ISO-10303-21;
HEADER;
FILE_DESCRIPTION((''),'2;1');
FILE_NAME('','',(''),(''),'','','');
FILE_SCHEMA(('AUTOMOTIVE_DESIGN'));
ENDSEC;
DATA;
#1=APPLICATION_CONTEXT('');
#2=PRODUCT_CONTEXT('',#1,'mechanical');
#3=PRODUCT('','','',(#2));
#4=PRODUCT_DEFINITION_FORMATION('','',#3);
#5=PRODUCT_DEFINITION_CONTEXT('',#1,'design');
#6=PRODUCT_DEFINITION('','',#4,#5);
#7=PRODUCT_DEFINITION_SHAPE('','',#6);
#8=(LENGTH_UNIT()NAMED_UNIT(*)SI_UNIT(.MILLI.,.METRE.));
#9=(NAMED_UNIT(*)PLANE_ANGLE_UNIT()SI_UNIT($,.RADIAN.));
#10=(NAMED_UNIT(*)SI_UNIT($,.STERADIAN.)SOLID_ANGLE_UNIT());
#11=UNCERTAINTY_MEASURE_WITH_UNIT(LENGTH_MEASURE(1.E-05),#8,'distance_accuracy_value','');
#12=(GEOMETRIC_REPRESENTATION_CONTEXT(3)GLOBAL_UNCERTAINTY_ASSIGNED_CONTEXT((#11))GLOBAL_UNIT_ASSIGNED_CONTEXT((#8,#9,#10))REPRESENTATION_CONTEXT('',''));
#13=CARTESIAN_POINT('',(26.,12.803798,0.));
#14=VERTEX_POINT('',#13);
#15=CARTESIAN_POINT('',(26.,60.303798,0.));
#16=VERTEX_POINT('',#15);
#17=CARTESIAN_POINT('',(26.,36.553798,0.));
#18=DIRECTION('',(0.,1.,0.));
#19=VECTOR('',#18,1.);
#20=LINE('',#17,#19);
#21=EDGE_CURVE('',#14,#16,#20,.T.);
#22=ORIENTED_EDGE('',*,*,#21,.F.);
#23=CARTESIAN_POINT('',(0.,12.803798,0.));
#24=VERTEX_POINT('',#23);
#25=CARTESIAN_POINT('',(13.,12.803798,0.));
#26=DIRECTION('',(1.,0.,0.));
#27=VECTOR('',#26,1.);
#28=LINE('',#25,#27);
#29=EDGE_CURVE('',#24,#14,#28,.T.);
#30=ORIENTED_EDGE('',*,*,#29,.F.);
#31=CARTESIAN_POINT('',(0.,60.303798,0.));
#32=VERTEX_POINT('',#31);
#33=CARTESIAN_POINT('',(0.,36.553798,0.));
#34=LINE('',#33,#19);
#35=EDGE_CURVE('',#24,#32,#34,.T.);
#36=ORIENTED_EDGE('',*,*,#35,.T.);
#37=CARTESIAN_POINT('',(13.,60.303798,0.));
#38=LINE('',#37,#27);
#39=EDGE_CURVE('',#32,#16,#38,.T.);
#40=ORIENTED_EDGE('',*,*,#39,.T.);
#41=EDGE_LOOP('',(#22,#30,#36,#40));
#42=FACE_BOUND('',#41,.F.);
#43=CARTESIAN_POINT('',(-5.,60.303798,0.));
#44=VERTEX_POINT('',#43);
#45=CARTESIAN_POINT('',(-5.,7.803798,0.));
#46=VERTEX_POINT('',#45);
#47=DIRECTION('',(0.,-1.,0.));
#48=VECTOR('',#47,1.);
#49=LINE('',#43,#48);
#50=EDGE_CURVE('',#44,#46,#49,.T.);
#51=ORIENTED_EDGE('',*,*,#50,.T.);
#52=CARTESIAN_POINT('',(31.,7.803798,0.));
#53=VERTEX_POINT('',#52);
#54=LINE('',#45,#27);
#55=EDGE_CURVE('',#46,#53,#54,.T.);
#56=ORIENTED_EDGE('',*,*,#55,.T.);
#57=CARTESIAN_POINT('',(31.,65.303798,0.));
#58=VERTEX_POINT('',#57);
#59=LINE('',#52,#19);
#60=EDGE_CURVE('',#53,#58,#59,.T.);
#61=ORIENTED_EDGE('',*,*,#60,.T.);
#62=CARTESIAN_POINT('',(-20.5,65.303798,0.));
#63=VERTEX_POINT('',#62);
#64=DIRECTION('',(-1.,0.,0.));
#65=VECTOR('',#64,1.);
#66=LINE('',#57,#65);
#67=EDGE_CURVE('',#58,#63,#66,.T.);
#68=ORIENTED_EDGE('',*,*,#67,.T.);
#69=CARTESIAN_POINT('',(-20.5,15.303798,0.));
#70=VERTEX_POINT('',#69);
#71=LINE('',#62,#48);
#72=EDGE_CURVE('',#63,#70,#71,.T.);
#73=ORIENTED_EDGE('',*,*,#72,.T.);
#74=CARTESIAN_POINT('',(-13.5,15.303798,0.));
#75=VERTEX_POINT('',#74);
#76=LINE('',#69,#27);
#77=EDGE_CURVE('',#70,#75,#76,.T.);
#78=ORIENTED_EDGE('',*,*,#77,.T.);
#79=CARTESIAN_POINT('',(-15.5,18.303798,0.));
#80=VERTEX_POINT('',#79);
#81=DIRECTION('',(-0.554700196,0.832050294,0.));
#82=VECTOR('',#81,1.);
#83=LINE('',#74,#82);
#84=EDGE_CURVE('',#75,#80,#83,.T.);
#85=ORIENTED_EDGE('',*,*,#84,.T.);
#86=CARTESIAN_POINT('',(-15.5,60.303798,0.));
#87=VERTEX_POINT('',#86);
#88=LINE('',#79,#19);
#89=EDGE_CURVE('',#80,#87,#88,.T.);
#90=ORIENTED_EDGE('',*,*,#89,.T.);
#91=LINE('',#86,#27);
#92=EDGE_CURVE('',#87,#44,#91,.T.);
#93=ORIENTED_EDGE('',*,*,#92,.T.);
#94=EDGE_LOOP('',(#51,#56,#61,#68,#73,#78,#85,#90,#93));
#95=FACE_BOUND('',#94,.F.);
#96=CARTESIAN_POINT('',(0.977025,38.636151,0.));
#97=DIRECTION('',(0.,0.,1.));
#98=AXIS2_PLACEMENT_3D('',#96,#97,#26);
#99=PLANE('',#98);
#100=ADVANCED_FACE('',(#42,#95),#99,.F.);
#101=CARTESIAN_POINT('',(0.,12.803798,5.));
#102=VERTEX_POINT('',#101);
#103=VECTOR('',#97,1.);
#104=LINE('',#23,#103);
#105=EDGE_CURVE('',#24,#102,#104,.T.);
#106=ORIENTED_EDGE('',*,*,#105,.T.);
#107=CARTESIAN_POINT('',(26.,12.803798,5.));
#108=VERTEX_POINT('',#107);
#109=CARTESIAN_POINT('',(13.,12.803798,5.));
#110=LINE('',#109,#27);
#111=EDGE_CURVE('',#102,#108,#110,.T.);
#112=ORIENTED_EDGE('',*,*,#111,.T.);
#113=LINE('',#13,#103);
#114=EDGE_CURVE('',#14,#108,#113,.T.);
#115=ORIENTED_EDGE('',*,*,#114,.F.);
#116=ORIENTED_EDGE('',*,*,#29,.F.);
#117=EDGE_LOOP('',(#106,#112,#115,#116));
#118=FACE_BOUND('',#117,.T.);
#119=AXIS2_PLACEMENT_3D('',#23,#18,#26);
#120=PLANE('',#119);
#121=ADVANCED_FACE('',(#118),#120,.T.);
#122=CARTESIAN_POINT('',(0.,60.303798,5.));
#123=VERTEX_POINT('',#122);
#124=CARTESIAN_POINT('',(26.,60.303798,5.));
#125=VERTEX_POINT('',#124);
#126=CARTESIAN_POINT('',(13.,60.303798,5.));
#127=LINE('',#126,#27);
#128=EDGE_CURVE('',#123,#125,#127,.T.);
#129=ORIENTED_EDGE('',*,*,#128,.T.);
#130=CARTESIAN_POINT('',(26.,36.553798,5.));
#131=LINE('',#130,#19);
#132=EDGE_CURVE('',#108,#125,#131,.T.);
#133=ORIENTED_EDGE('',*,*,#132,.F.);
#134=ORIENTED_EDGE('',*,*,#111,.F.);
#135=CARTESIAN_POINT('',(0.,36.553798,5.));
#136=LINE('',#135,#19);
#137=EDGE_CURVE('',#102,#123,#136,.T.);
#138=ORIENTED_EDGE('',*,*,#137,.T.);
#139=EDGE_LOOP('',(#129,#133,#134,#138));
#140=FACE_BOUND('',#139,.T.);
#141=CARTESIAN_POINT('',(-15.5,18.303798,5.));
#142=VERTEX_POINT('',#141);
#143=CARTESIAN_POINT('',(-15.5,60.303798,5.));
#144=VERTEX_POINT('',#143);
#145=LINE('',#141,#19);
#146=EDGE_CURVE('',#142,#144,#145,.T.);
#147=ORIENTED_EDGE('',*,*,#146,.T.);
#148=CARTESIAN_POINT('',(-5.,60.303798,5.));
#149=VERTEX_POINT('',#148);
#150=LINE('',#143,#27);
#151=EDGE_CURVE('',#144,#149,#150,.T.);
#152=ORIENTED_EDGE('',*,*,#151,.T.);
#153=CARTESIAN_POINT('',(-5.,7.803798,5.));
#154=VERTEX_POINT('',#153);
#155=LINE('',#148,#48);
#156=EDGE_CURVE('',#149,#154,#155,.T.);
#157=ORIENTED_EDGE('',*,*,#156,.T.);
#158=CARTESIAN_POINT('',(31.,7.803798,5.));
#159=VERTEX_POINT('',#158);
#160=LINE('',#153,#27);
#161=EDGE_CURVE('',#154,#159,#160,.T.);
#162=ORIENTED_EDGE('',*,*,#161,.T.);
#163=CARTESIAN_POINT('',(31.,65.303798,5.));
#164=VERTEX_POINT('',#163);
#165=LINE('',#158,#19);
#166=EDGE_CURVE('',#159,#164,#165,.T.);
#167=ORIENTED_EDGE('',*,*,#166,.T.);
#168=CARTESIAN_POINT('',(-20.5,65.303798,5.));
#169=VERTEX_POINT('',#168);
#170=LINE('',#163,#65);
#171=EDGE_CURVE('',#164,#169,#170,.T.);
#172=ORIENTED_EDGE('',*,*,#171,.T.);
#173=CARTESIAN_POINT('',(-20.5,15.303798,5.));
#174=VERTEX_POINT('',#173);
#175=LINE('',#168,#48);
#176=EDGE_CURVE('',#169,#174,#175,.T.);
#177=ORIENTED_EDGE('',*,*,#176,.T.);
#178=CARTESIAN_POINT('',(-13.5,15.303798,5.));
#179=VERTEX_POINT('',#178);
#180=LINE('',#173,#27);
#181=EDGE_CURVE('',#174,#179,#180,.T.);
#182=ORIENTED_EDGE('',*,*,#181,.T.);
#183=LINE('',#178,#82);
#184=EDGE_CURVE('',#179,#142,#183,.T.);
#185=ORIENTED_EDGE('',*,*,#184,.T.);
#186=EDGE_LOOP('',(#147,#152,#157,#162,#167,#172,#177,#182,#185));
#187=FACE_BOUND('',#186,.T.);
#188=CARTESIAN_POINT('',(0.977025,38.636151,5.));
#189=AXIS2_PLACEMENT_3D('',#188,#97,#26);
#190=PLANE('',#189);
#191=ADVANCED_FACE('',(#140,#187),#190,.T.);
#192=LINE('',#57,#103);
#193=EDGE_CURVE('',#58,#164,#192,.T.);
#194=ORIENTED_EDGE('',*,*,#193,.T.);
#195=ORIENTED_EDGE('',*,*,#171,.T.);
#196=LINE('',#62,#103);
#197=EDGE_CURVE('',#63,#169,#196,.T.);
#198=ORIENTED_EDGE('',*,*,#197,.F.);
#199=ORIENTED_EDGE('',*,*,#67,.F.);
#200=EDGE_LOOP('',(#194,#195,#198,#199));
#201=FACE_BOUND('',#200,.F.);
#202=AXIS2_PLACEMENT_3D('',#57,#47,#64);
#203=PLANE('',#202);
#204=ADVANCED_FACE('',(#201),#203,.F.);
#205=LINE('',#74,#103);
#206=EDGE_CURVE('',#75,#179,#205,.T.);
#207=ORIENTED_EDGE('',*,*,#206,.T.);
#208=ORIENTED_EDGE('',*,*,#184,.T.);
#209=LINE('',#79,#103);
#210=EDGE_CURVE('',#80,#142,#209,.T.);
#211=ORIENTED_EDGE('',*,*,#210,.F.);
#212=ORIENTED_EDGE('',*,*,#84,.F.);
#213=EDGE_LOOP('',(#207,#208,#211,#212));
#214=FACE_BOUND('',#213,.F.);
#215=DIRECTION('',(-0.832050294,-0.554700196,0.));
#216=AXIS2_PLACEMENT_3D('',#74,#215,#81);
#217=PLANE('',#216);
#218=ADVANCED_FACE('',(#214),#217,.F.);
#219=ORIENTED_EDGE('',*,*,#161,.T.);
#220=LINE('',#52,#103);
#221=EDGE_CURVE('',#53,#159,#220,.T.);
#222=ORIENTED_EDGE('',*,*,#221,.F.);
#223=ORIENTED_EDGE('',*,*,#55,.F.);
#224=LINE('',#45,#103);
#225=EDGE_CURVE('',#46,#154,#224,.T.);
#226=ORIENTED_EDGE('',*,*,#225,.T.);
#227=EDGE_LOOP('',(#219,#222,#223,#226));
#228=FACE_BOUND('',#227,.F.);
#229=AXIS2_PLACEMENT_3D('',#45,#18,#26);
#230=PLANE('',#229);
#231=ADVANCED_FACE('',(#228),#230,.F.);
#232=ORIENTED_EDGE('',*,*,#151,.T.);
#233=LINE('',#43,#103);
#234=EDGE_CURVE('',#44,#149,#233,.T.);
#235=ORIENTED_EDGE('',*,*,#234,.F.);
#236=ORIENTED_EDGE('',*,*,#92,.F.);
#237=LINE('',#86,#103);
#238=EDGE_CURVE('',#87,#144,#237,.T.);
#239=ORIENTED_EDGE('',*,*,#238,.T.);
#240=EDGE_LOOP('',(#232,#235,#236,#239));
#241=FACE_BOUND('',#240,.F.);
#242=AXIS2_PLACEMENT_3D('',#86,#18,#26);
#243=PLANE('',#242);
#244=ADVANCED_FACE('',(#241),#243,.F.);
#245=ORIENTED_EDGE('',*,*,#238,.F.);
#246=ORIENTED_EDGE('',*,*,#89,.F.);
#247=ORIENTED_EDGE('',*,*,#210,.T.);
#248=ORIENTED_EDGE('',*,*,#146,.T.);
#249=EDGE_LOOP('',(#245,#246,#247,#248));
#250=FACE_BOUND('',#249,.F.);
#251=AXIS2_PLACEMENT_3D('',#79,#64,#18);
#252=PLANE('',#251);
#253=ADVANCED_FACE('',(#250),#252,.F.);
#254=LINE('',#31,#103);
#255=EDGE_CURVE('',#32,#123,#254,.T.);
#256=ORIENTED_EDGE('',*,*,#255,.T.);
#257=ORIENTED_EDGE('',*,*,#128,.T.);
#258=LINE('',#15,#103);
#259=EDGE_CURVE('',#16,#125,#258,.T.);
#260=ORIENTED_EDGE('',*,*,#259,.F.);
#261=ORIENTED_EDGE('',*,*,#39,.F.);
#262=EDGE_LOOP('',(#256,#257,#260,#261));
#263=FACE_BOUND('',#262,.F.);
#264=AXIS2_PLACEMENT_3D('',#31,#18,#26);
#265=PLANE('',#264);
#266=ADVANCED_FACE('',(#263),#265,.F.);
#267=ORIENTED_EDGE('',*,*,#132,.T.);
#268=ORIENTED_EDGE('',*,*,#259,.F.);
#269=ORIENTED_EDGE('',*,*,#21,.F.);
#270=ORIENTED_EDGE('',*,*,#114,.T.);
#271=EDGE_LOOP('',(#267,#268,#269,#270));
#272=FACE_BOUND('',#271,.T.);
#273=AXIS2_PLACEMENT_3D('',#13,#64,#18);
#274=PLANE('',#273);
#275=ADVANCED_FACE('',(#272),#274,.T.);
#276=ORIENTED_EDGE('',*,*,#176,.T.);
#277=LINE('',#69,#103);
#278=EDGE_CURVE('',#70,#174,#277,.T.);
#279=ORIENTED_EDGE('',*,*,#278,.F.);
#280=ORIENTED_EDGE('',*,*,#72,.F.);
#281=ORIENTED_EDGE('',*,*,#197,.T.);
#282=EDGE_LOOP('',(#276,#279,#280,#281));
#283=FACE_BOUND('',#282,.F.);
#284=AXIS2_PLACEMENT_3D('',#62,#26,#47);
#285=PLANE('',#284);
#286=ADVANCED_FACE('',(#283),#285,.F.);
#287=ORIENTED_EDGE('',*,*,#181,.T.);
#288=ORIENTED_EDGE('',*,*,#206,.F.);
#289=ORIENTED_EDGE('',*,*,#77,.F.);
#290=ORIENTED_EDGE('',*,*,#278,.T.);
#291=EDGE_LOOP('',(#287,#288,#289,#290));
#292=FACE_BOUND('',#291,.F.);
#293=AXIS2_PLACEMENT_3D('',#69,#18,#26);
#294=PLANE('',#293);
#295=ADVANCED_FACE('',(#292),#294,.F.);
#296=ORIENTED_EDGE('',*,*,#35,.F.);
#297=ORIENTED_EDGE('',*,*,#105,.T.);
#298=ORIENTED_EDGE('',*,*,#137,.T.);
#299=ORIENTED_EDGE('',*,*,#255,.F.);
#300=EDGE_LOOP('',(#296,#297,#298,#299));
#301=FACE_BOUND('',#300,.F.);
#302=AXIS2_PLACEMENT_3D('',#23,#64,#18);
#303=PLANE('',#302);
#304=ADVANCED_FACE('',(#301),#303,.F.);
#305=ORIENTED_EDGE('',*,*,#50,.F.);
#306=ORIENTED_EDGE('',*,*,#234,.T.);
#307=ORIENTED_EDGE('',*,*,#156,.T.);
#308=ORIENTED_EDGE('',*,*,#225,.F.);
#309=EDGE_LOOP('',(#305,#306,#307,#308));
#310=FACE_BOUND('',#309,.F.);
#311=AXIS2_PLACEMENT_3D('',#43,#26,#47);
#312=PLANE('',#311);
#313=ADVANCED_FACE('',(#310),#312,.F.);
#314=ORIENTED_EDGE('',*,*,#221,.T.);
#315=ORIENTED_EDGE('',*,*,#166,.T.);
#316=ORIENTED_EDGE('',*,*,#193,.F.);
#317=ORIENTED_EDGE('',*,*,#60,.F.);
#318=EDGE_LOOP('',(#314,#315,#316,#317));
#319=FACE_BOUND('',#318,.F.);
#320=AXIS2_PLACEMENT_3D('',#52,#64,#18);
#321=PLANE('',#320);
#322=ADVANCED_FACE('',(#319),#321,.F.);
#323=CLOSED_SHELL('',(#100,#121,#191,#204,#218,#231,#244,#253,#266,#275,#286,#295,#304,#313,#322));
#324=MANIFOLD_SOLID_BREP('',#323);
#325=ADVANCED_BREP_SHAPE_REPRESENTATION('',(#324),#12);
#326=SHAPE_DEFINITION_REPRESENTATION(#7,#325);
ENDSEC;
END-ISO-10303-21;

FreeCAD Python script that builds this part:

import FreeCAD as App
import Part
import Sketcher
from FreeCAD import Vector

doc = App.newDocument("Part")
params = doc.addObject("Spreadsheet::Sheet", "Params")
for row, (alias, value) in enumerate([
    ("sketch1_width", "7 mm"),
    ("sketch1_width2", "36 mm"),
    ("sketch1_width3", "26 mm"),
    ("sketch1_height", "50 mm"),
    ("sketch1_height2", "42 mm"),
    ("pad1_length", "5 mm"),
], start=1):
    params.set(f"A{row}", alias)
    params.set(f"B{row}", "=" + value)
    params.setAlias(f"B{row}", alias)

body = doc.addObject("PartDesign::Body", "Body")

# Sketch on XY plane
sketch1 = body.newObject("Sketcher::SketchObject", "Sketch")
sketch1.AttachmentSupport = (doc.getObject("XY_Plane"), [""])
sketch1.MapMode = "FlatFace"
sketch1.addGeometry([
    Part.LineSegment(Vector(-20.5, 65.303798, 0), Vector(-20.5, 15.303798, 0)),  # 0
    Part.LineSegment(Vector(-20.5, 15.303798, 0), Vector(-13.5, 15.303798, 0)),  # 1
    Part.LineSegment(Vector(-13.5, 15.303798, 0), Vector(-15.5, 18.303798, 0)),  # 2
    Part.LineSegment(Vector(-15.5, 18.303798, 0), Vector(-15.5, 60.303798, 0)),  # 3
    Part.LineSegment(Vector(-15.5, 60.303798, 0), Vector(-5, 60.303798, 0)),  # 4
    Part.LineSegment(Vector(-5, 60.303798, 0), Vector(-5, 7.803798, 0)),  # 5
    Part.LineSegment(Vector(-5, 7.803798, 0), Vector(31, 7.803798, 0)),  # 6
    Part.LineSegment(Vector(31, 7.803798, 0), Vector(31, 65.303798, 0)),  # 7
    Part.LineSegment(Vector(31, 65.303798, 0), Vector(-20.5, 65.303798, 0)),  # 8
    Part.LineSegment(Vector(26, 12.803798, 0), Vector(0, 12.803798, 0)),  # 9
    Part.LineSegment(Vector(0, 12.803798, 0), Vector(0, 60.303798, 0)),  # 10
    Part.LineSegment(Vector(0, 60.303798, 0), Vector(26, 60.303798, 0)),  # 11
    Part.LineSegment(Vector(26, 60.303798, 0), Vector(26, 12.803798, 0)),  # 12
], False)
sketch1.addConstraint([
    Sketcher.Constraint("Coincident", 0, 2, 1, 1),
    Sketcher.Constraint("Coincident", 1, 2, 2, 1),
    Sketcher.Constraint("Coincident", 2, 2, 3, 1),
    Sketcher.Constraint("Coincident", 3, 2, 4, 1),
    Sketcher.Constraint("Coincident", 4, 2, 5, 1),
    Sketcher.Constraint("Coincident", 5, 2, 6, 1),
    Sketcher.Constraint("Coincident", 6, 2, 7, 1),
    Sketcher.Constraint("Coincident", 7, 2, 8, 1),
    Sketcher.Constraint("Coincident", 8, 2, 0, 1),
    Sketcher.Constraint("Coincident", 9, 2, 10, 1),
    Sketcher.Constraint("Coincident", 10, 2, 11, 1),
    Sketcher.Constraint("Coincident", 11, 2, 12, 1),
    Sketcher.Constraint("Coincident", 12, 2, 9, 1),
    Sketcher.Constraint("Vertical", 0),
    Sketcher.Constraint("Horizontal", 1),
    Sketcher.Constraint("Vertical", 3),
    Sketcher.Constraint("Horizontal", 4),
    Sketcher.Constraint("Vertical", 5),
    Sketcher.Constraint("Horizontal", 6),
    Sketcher.Constraint("Vertical", 7),
    Sketcher.Constraint("Horizontal", 8),
    Sketcher.Constraint("Horizontal", 9),
    Sketcher.Constraint("Vertical", 10),
    Sketcher.Constraint("Horizontal", 11),
    Sketcher.Constraint("Vertical", 12),
    Sketcher.Constraint("PointOnObject", 9, 2, -2),
    Sketcher.Constraint("Horizontal", 4, 2, 10, 2),
    Sketcher.Constraint("DistanceX", 1, 1, 1, 2, 7.0),
    Sketcher.Constraint("DistanceX", 6, 1, 6, 2, 36.0),
    Sketcher.Constraint("DistanceX", 9, 2, 9, 1, 26.0),
    Sketcher.Constraint("DistanceY", 0, 2, 0, 1, 50.0),
    Sketcher.Constraint("DistanceY", 3, 1, 3, 2, 42.0),
    Sketcher.Constraint("DistanceX", 4, 1, 4, 2, 10.5),
    Sketcher.Constraint("DistanceX", 8, 2, 8, 1, 51.5),
    Sketcher.Constraint("DistanceY", 5, 2, 5, 1, 52.5),
    Sketcher.Constraint("DistanceY", 7, 1, 7, 2, 57.5),
    Sketcher.Constraint("DistanceY", 10, 1, 10, 2, 47.5),
    Sketcher.Constraint("DistanceX", 4, 2, -1, 1, 5.0),
    Sketcher.Constraint("DistanceY", -1, 1, 2, 2, 18.303798),
])
sketch1.setExpression("Constraints[27]", "Params.sketch1_width")
sketch1.setExpression("Constraints[28]", "Params.sketch1_width2")
sketch1.setExpression("Constraints[29]", "Params.sketch1_width3")
sketch1.setExpression("Constraints[30]", "Params.sketch1_height")
sketch1.setExpression("Constraints[31]", "Params.sketch1_height2")
pad1 = body.newObject("PartDesign::Pad", "Pad")
pad1.Profile = sketch1
pad1.setExpression("Length", "Params.pad1_length")

doc.recompute()
